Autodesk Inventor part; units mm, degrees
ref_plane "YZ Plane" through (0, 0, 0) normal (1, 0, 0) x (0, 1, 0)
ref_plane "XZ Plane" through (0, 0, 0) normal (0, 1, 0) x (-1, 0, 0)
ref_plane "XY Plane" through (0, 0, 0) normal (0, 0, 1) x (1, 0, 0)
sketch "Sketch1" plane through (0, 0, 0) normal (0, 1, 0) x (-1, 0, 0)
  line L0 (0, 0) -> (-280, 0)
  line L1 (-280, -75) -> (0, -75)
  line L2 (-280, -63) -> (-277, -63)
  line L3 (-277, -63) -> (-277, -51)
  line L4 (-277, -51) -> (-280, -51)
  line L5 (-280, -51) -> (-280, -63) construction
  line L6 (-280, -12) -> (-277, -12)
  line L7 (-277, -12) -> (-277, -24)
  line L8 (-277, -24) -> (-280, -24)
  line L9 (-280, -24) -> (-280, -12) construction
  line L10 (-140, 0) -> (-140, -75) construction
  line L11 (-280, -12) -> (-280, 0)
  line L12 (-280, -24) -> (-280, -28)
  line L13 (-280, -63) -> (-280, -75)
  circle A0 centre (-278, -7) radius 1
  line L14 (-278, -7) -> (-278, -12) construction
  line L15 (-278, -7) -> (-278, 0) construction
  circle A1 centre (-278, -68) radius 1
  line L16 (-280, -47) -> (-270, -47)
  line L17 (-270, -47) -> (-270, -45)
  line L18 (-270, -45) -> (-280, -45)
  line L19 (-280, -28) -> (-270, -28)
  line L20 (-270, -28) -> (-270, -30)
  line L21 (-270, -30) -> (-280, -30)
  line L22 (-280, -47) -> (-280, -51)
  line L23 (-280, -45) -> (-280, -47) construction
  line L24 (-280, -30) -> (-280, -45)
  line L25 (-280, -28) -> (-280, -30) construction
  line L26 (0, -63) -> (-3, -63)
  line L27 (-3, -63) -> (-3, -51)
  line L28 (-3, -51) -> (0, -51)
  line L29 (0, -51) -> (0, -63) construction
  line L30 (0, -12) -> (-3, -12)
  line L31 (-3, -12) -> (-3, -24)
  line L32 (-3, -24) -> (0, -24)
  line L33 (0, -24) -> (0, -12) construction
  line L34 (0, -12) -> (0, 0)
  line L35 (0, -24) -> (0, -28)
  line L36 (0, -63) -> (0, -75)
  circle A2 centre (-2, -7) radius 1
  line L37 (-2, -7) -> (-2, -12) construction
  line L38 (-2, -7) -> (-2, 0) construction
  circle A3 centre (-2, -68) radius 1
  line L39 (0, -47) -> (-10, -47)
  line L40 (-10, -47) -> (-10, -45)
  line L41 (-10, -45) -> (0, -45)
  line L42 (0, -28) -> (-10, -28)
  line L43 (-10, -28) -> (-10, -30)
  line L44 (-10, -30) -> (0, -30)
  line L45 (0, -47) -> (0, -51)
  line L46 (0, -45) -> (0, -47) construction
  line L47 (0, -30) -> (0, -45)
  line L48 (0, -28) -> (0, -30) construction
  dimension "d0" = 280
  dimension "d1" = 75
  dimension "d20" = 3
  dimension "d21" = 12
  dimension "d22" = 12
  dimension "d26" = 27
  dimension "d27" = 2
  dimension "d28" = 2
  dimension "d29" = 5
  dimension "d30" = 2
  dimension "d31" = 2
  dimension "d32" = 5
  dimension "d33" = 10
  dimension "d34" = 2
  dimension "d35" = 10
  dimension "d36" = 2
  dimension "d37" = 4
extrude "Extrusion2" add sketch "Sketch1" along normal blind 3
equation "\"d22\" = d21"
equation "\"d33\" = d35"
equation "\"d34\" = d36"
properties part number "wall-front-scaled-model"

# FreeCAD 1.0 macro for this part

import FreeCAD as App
import Part
import Sketcher
Q = App.Units.Quantity

doc = App.newDocument("Part")
body = doc.addObject("PartDesign::Body", "Body")

# Sketch on XZ plane
sketch1 = body.newObject("Sketcher::SketchObject", "Sketch")
sketch1.AttachmentSupport = (doc.getObject("XZ_Plane"), [""])
sketch1.MapMode = "FlatFace"
sketch1.addGeometry([
    Part.LineSegment(App.Vector(0, -12, 0), App.Vector(0, 0, 0)),  # 0
    Part.LineSegment(App.Vector(0, 0, 0), App.Vector(280, 0, 0)),  # 1
    Part.LineSegment(App.Vector(280, 0, 0), App.Vector(280, -12, 0)),  # 2
    Part.LineSegment(App.Vector(280, -12, 0), App.Vector(277, -12, 0)),  # 3
    Part.LineSegment(App.Vector(277, -12, 0), App.Vector(277, -24, 0)),  # 4
    Part.LineSegment(App.Vector(277, -24, 0), App.Vector(280, -24, 0)),  # 5
    Part.LineSegment(App.Vector(280, -24, 0), App.Vector(280, -28, 0)),  # 6
    Part.LineSegment(App.Vector(280, -28, 0), App.Vector(270, -28, 0)),  # 7
    Part.LineSegment(App.Vector(270, -28, 0), App.Vector(270, -30, 0)),  # 8
    Part.LineSegment(App.Vector(270, -30, 0), App.Vector(280, -30, 0)),  # 9
    Part.LineSegment(App.Vector(280, -30, 0), App.Vector(280, -45, 0)),  # 10
    Part.LineSegment(App.Vector(280, -45, 0), App.Vector(270, -45, 0)),  # 11
    Part.LineSegment(App.Vector(270, -45, 0), App.Vector(270, -47, 0)),  # 12
    Part.LineSegment(App.Vector(270, -47, 0), App.Vector(280, -47, 0)),  # 13
    Part.LineSegment(App.Vector(280, -47, 0), App.Vector(280, -51, 0)),  # 14
    Part.LineSegment(App.Vector(280, -51, 0), App.Vector(277, -51, 0)),  # 15
    Part.LineSegment(App.Vector(277, -51, 0), App.Vector(277, -63, 0)),  # 16
    Part.LineSegment(App.Vector(277, -63, 0), App.Vector(280, -63, 0)),  # 17
    Part.LineSegment(App.Vector(280, -63, 0), App.Vector(280, -75, 0)),  # 18
    Part.LineSegment(App.Vector(280, -75, 0), App.Vector(0, -75, 0)),  # 19
    Part.LineSegment(App.Vector(0, -75, 0), App.Vector(0, -63, 0)),  # 20
    Part.LineSegment(App.Vector(0, -63, 0), App.Vector(3, -63, 0)),  # 21
    Part.LineSegment(App.Vector(3, -63, 0), App.Vector(3, -51, 0)),  # 22
    Part.LineSegment(App.Vector(3, -51, 0), App.Vector(0, -51, 0)),  # 23
    Part.LineSegment(App.Vector(0, -51, 0), App.Vector(0, -47, 0)),  # 24
    Part.LineSegment(App.Vector(0, -47, 0), App.Vector(10, -47, 0)),  # 25
    Part.LineSegment(App.Vector(10, -47, 0), App.Vector(10, -45, 0)),  # 26
    Part.LineSegment(App.Vector(10, -45, 0), App.Vector(0, -45, 0)),  # 27
    Part.LineSegment(App.Vector(0, -45, 0), App.Vector(0, -30, 0)),  # 28
    Part.LineSegment(App.Vector(0, -30, 0), App.Vector(10, -30, 0)),  # 29
    Part.LineSegment(App.Vector(10, -30, 0), App.Vector(10, -28, 0)),  # 30
    Part.LineSegment(App.Vector(10, -28, 0), App.Vector(0, -28, 0)),  # 31
    Part.LineSegment(App.Vector(0, -28, 0), App.Vector(0, -24, 0)),  # 32
    Part.LineSegment(App.Vector(0, -24, 0), App.Vector(3, -24, 0)),  # 33
    Part.LineSegment(App.Vector(3, -24, 0), App.Vector(3, -12, 0)),  # 34
    Part.LineSegment(App.Vector(3, -12, 0), App.Vector(0, -12, 0)),  # 35
    Part.Circle(App.Vector(278, -68, 0), App.Vector(0, 0, 1), 1),  # 36
    Part.Circle(App.Vector(2, -68, 0), App.Vector(0, 0, 1), 1),  # 37
    Part.Circle(App.Vector(278, -7, 0), App.Vector(0, 0, 1), 1),  # 38
    Part.Circle(App.Vector(2, -7, 0), App.Vector(0, 0, 1), 1),  # 39
], False)
sketch1.addConstraint([
    Sketcher.Constraint("Coincident", 0, 2, 1, 1),
    Sketcher.Constraint("Coincident", 1, 2, 2, 1),
    Sketcher.Constraint("Coincident", 2, 2, 3, 1),
    Sketcher.Constraint("Coincident", 3, 2, 4, 1),
    Sketcher.Constraint("Coincident", 4, 2, 5, 1),
    Sketcher.Constraint("Coincident", 5, 2, 6, 1),
    Sketcher.Constraint("Coincident", 6, 2, 7, 1),
    Sketcher.Constraint("Coincident", 7, 2, 8, 1),
    Sketcher.Constraint("Coincident", 8, 2, 9, 1),
    Sketcher.Constraint("Coincident", 9, 2, 10, 1),
    Sketcher.Constraint("Coincident", 10, 2, 11, 1),
    Sketcher.Constraint("Coincident", 11, 2, 12, 1),
    Sketcher.Constraint("Coincident", 12, 2, 13, 1),
    Sketcher.Constraint("Coincident", 13, 2, 14, 1),
    Sketcher.Constraint("Coincident", 14, 2, 15, 1),
    Sketcher.Constraint("Coincident", 15, 2, 16, 1),
    Sketcher.Constraint("Coincident", 16, 2, 17, 1),
    Sketcher.Constraint("Coincident", 17, 2, 18, 1),
    Sketcher.Constraint("Coincident", 18, 2, 19, 1),
    Sketcher.Constraint("Coincident", 19, 2, 20, 1),
    Sketcher.Constraint("Coincident", 20, 2, 21, 1),
    Sketcher.Constraint("Coincident", 21, 2, 22, 1),
    Sketcher.Constraint("Coincident", 22, 2, 23, 1),
    Sketcher.Constraint("Coincident", 23, 2, 24, 1),
    Sketcher.Constraint("Coincident", 24, 2, 25, 1),
    Sketcher.Constraint("Coincident", 25, 2, 26, 1),
    Sketcher.Constraint("Coincident", 26, 2, 27, 1),
    Sketcher.Constraint("Coincident", 27, 2, 28, 1),
    Sketcher.Constraint("Coincident", 28, 2, 29, 1),
    Sketcher.Constraint("Coincident", 29, 2, 30, 1),
    Sketcher.Constraint("Coincident", 30, 2, 31, 1),
    Sketcher.Constraint("Coincident", 31, 2, 32, 1),
    Sketcher.Constraint("Coincident", 32, 2, 33, 1),
    Sketcher.Constraint("Coincident", 33, 2, 34, 1),
    Sketcher.Constraint("Coincident", 34, 2, 35, 1),
    Sketcher.Constraint("Coincident", 35, 2, 0, 1),
    Sketcher.Constraint("Vertical", 0),
    Sketcher.Constraint("Horizontal", 1),
    Sketcher.Constraint("Vertical", 2),
    Sketcher.Constraint("Horizontal", 3),
    Sketcher.Constraint("Vertical", 4),
    Sketcher.Constraint("Horizontal", 5),
    Sketcher.Constraint("Vertical", 6),
    Sketcher.Constraint("Horizontal", 7),
    Sketcher.Constraint("Vertical", 8),
    Sketcher.Constraint("Horizontal", 9),
    Sketcher.Constraint("Vertical", 10),
    Sketcher.Constraint("Horizontal", 11),
    Sketcher.Constraint("Vertical", 12),
    Sketcher.Constraint("Horizontal", 13),
    Sketcher.Constraint("Vertical", 14),
    Sketcher.Constraint("Horizontal", 15),
    Sketcher.Constraint("Vertical", 16),
    Sketcher.Constraint("Horizontal", 17),
    Sketcher.Constraint("Vertical", 18),
    Sketcher.Constraint("Horizontal", 19),
    Sketcher.Constraint("Vertical", 20),
    Sketcher.Constraint("Horizontal", 21),
    Sketcher.Constraint("Vertical", 22),
    Sketcher.Constraint("Horizontal", 23),
    Sketcher.Constraint("Vertical", 24),
    Sketcher.Constraint("Horizontal", 25),
    Sketcher.Constraint("Vertical", 26),
    Sketcher.Constraint("Horizontal", 27),
    Sketcher.Constraint("Vertical", 28),
    Sketcher.Constraint("Horizontal", 29),
    Sketcher.Constraint("Vertical", 30),
    Sketcher.Constraint("Horizontal", 31),
    Sketcher.Constraint("Vertical", 32),
    Sketcher.Constraint("Horizontal", 33),
    Sketcher.Constraint("Vertical", 34),
    Sketcher.Constraint("Horizontal", 35),
    Sketcher.Constraint("Coincident", 0, 2, -1, 1),
    Sketcher.Constraint("Equal", 36, 37),
    Sketcher.Constraint("Equal", 37, 38),
    Sketcher.Constraint("Equal", 38, 39),
    Sketcher.Constraint("PointOnObject", 19, 2, -2),
    Sketcher.Constraint("PointOnObject", 23, 2, -2),
    Sketcher.Constraint("PointOnObject", 27, 2, -2),
    Sketcher.Constraint("PointOnObject", 31, 2, -2),
    Sketcher.Constraint("Horizontal", 36, 3, 37, 3),
    Sketcher.Constraint("Horizontal", 38, 3, 39, 3),
    Sketcher.Constraint("Horizontal", 17, 2, 20, 2),
    Sketcher.Constraint("Horizontal", 15, 2, 22, 2),
    Sketcher.Constraint("Horizontal", 13, 2, 24, 2),
    Sketcher.Constraint("Horizontal", 11, 2, 26, 2),
    Sketcher.Constraint("Horizontal", 9, 2, 28, 2),
    Sketcher.Constraint("Horizontal", 7, 2, 30, 2),
    Sketcher.Constraint("Horizontal", 5, 2, 32, 2),
    Sketcher.Constraint("Horizontal", 3, 2, 34, 2),
    Sketcher.Constraint("Vertical", 36, 3, 38, 3),
    Sketcher.Constraint("Vertical", 37, 3, 39, 3),
    Sketcher.Constraint("Vertical", 2, 2, 5, 2),
    Sketcher.Constraint("Vertical", 6, 2, 9, 2),
    Sketcher.Constraint("Vertical", 8, 2, 11, 2),
    Sketcher.Constraint("Vertical", 10, 2, 13, 2),
    Sketcher.Constraint("Vertical", 4, 2, 15, 2),
    Sketcher.Constraint("Vertical", 14, 2, 17, 2),
    Sketcher.Constraint("Vertical", 26, 2, 29, 2),
    Sketcher.Constraint("Vertical", 22, 2, 33, 2),
    Sketcher.Constraint("Equal", 17, 21),
    Sketcher.Constraint("Equal", 13, 25),
    Sketcher.Constraint("Equal", 2, 4),
    Sketcher.Constraint("Equal", 8, 12),
    Sketcher.Constraint("Equal", 6, 14),
    Sketcher.Constraint("Equal", 4, 16),
    Sketcher.Constraint("Equal", 16, 18),
    Sketcher.Constraint("Diameter", 36, Q("2 mm")),
    Sketcher.Constraint("DistanceX", 1, 1, 1, 2, Q("280 mm")),
    Sketcher.Constraint("DistanceX", 3, 2, 3, 1, Q("3 mm")),
    Sketcher.Constraint("DistanceX", 7, 2, 7, 1, Q("10 mm")),
    Sketcher.Constraint("DistanceY", 0, 1, 0, 2, Q("12 mm")),
    Sketcher.Constraint("DistanceY", 6, 2, 6, 1, Q("4 mm")),
    Sketcher.Constraint("DistanceY", 8, 2, 8, 1, Q("2 mm")),
    Sketcher.Constraint("DistanceX", -1, 1, 37, 3, Q("2 mm")),
    Sketcher.Constraint("DistanceY", 18, 2, -1, 1, Q("75 mm")),
    Sketcher.Constraint("DistanceX", 38, 3, 1, 2, Q("2 mm")),
    Sketcher.Constraint("DistanceY", 2, 2, 38, 3, Q("5 mm")),
    Sketcher.Constraint("DistanceY", 36, 3, 16, 2, Q("5 mm")),
])
pad1 = body.newObject("PartDesign::Pad", "Pad")
pad1.Profile = sketch1
pad1.Length = 3
pad1.Reversed = True

doc.recompute()
